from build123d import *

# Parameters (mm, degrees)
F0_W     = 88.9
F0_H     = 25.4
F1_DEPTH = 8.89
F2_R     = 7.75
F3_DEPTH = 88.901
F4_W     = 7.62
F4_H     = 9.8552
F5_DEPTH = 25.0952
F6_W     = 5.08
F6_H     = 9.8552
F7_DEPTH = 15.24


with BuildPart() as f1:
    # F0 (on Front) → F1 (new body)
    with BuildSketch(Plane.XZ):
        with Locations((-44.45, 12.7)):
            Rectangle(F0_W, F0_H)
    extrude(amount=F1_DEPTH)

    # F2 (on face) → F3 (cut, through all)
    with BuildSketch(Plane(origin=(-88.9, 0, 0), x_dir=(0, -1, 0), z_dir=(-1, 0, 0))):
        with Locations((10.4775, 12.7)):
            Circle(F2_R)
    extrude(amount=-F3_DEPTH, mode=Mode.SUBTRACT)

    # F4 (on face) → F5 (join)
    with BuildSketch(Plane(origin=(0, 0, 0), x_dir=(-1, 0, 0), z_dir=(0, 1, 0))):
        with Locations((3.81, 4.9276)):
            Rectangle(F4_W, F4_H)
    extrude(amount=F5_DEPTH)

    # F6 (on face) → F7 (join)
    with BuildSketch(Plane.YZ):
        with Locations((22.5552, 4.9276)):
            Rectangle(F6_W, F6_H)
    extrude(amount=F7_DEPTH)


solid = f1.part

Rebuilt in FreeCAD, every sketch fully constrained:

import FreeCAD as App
import Part
import Sketcher
from FreeCAD import Vector
Q = App.Units.Quantity


def add_polygon(sketch, points):
    """Adds a closed chain of lines whose ends are joined by coincident constraints."""
    first, n = sketch.GeometryCount, len(points)
    for a, b in zip(points, points[1:] + points[:1]):
        sketch.addGeometry(Part.LineSegment(App.Vector(*a, 0), App.Vector(*b, 0)), False)
    for i in range(n):
        sketch.addConstraint(Sketcher.Constraint("Coincident", first + i, 2, first + (i + 1) % n, 1))

doc = App.newDocument("Part")
body = doc.addObject("PartDesign::Body", "Body")

# Sketch on XZ plane
sketch1 = body.newObject("Sketcher::SketchObject", "Sketch")
sketch1.AttachmentSupport = (doc.getObject("XZ_Plane"), [""])
sketch1.MapMode = "FlatFace"
add_polygon(sketch1, [(-89, 25), (-89, 0), (0, 0), (0, 25)])  # lines 0-3
sketch1.addConstraint([
    Sketcher.Constraint("Vertical", 0),
    Sketcher.Constraint("Horizontal", 1),
    Sketcher.Constraint("Vertical", 2),
    Sketcher.Constraint("Horizontal", 3),
    Sketcher.Constraint("Coincident", 1, 2, -1, 1),
    Sketcher.Constraint("DistanceY", 0, 2, 0, 1, Q("1 in")),
    Sketcher.Constraint("DistanceX", 1, 1, 1, 2, Q("3.5 in")),
])
pad1 = body.newObject("PartDesign::Pad", "Pad")
pad1.Profile = sketch1
pad1.Length = Q("0.35 in")

# Sketch on YZ plane
sketch2 = body.newObject("Sketcher::SketchObject", "Sketch001")
sketch2.AttachmentSupport = (doc.getObject("YZ_Plane"), [""])
sketch2.MapMode = "FlatFace"
sketch2.AttachmentOffset = App.Placement(Vector(0, 0, -3.5 * 25.4), App.Rotation())
sketch2.addGeometry(Part.Circle(Vector(-10, 13, 0), Vector(0, 0, 1), 8), False)
sketch2.addConstraint([
    Sketcher.Constraint("DistanceY", -1, 1, 0, 3, Q("0.5 in")),
    Sketcher.Constraint("Diameter", 0, Q("15.5 mm")),
    Sketcher.Constraint("DistanceX", 0, 3, -1, 1, Q("0.4125 in")),
])
pocket1 = body.newObject("PartDesign::Pocket", "Pocket")
pocket1.Profile = sketch2
pocket1.Type = "ThroughAll"
pocket1.Reversed = True

# Sketch on XZ plane
sketch3 = body.newObject("Sketcher::SketchObject", "Sketch002")
sketch3.AttachmentSupport = (doc.getObject("XZ_Plane"), [""])
sketch3.MapMode = "FlatFace"
add_polygon(sketch3, [(0, 10), (0, 0), (-8, 0), (-8, 10)])  # lines 0-3
sketch3.addConstraint([
    Sketcher.Constraint("Vertical", 0),
    Sketcher.Constraint("Horizontal", 1),
    Sketcher.Constraint("Vertical", 2),
    Sketcher.Constraint("Horizontal", 3),
    Sketcher.Constraint("Coincident", 0, 2, -1, 1),
    Sketcher.Constraint("DistanceX", 1, 2, 1, 1, Q("0.3 in")),
    Sketcher.Constraint("DistanceY", 0, 2, 0, 1, Q("0.388 in")),
])
pad2 = body.newObject("PartDesign::Pad", "Pad001")
pad2.Profile = sketch3
pad2.Length = Q("0.988 in")
pad2.Reversed = True

# Sketch on YZ plane
sketch4 = body.newObject("Sketcher::SketchObject", "Sketch003")
sketch4.AttachmentSupport = (doc.getObject("YZ_Plane"), [""])
sketch4.MapMode = "FlatFace"
add_polygon(sketch4, [(20, 10), (20, 0), (25, 0), (25, 10)])  # lines 0-3
sketch4.addConstraint([
    Sketcher.Constraint("Vertical", 0),
    Sketcher.Constraint("Horizontal", 1),
    Sketcher.Constraint("Vertical", 2),
    Sketcher.Constraint("Horizontal", 3),
    Sketcher.Constraint("PointOnObject", 0, 2, -1),
    Sketcher.Constraint("DistanceX", 1, 1, 1, 2, Q("0.2 in")),
    Sketcher.Constraint("DistanceY", 0, 2, 0, 1, Q("0.388 in")),
    Sketcher.Constraint("DistanceX", -1, 1, 0, 2, Q("0.788 in")),
])
pad3 = body.newObject("PartDesign::Pad", "Pad002")
pad3.Profile = sketch4
pad3.Length = Q("0.6 in")

doc.recompute()
